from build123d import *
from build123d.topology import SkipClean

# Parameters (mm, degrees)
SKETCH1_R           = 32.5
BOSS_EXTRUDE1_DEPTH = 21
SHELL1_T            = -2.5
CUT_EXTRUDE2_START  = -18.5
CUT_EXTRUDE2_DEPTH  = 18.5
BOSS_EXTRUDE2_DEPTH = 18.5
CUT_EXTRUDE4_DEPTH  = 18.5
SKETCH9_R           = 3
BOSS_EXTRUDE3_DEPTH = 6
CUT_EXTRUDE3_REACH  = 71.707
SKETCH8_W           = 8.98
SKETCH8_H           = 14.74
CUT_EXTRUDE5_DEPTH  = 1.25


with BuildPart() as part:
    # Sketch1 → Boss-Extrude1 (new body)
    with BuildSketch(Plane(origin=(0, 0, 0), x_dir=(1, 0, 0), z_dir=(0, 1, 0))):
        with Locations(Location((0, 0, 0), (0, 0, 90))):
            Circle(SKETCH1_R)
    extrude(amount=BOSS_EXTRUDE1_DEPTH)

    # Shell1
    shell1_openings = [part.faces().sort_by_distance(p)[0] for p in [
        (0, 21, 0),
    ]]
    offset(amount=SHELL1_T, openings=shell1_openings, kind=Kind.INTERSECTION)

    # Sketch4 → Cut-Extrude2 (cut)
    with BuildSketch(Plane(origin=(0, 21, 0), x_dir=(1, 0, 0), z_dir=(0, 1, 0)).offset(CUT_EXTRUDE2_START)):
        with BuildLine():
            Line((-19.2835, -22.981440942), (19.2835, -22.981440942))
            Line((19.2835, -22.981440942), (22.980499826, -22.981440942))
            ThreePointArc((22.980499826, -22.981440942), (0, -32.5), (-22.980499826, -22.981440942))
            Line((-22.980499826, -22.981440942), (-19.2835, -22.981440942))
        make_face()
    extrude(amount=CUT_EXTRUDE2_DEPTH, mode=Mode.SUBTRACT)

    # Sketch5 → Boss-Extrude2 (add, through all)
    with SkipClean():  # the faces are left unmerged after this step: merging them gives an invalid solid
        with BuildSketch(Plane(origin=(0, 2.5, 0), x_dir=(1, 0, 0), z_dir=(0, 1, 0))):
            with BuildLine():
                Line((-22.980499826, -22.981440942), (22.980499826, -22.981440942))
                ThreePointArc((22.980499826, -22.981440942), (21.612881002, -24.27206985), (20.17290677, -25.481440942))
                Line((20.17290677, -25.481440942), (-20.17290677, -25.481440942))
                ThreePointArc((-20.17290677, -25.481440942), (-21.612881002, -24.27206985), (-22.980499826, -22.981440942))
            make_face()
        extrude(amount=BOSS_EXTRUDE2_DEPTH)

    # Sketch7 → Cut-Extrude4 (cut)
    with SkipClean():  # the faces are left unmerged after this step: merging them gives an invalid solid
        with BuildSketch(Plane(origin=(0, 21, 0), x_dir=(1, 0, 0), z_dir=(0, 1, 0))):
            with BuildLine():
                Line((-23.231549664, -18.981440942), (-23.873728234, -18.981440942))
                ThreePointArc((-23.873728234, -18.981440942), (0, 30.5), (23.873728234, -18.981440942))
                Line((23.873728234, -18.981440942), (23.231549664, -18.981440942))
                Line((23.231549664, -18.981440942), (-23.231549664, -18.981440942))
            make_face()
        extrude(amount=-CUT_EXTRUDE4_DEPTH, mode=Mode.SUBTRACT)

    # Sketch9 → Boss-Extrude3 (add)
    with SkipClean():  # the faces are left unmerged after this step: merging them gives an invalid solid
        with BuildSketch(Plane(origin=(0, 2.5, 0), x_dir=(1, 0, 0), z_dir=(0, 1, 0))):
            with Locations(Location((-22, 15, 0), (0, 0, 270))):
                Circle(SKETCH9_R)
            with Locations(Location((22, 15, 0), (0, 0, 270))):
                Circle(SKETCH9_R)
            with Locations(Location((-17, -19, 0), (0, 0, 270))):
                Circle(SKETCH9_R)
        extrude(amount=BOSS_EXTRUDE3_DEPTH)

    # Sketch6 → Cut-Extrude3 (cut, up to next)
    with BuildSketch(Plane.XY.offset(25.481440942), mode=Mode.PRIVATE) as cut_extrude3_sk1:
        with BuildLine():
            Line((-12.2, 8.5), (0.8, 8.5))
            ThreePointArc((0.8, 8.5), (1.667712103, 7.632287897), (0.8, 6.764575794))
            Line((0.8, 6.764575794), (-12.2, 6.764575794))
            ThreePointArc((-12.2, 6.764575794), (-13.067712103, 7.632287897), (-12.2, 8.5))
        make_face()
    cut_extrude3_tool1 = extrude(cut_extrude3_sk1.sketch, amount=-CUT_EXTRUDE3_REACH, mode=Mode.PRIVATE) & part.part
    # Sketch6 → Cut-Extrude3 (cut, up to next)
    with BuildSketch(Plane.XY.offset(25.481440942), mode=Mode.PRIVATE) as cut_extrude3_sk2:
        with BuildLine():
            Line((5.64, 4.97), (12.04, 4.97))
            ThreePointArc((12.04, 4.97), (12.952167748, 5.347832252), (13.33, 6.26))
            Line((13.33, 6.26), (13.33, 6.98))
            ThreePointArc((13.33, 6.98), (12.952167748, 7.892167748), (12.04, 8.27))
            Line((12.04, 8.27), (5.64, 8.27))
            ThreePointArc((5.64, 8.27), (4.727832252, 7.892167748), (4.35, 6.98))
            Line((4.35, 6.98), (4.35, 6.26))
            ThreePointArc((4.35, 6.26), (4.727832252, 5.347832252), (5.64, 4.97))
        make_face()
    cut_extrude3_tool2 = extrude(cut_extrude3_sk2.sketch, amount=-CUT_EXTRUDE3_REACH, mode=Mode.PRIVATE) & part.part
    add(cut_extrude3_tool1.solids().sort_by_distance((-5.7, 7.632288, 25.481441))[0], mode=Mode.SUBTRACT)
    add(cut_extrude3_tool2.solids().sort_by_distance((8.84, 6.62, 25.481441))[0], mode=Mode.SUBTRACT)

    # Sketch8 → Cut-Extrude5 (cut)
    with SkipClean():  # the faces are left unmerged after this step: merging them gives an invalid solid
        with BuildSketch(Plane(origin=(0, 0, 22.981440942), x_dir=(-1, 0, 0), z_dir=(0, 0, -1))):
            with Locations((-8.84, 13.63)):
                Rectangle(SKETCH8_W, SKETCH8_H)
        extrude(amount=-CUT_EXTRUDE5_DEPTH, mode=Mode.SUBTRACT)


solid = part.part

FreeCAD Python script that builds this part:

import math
import FreeCAD as App
import Part
import Sketcher

V = App.Vector
Q = App.Units.Quantity


def faces_at(feature, points):
    """Names of the faces that lie closest to the given points."""
    faces = feature.Shape.Faces
    near = lambda p: min(range(len(faces)), key=lambda i: faces[i].distToShape(Part.Vertex(*p))[0])
    return sorted({f"Face{near(p) + 1}" for p in points})

doc = App.newDocument("Part")
body = doc.addObject("PartDesign::Body", "Body")

# Sketch on XZ plane
sketch1 = body.newObject("Sketcher::SketchObject", "Sketch")
sketch1.AttachmentSupport = (doc.getObject("XZ_Plane"), [""])
sketch1.MapMode = "FlatFace"
sketch1.addGeometry(Part.Circle(V(0, 0, 0), V(0, 0, 1), 32.5), False)
sketch1.addConstraint([
    Sketcher.Constraint("Coincident", 0, 3, -1, 1),
    Sketcher.Constraint("Diameter", 0, Q("65 mm")),
])
pad1 = body.newObject("PartDesign::Pad", "Pad")
pad1.Profile = sketch1
pad1.Length = 21
pad1.Reversed = True
doc.recompute()

thickness = body.newObject("PartDesign::Thickness", "Thickness")
thickness.Base = (pad1, faces_at(pad1, [(0, 21, 0)]))
thickness.Value = 2.5
thickness.Reversed = True
thickness.Join = "Intersection"

# Sketch on XZ plane
sketch2 = body.newObject("Sketcher::SketchObject", "Sketch001")
sketch2.AttachmentSupport = (doc.getObject("XZ_Plane"), [""])
sketch2.MapMode = "FlatFace"
sketch2.AttachmentOffset = App.Placement(V(0, 0, -2.5), App.Rotation())
sketch2.addGeometry([
    Part.ArcOfCircle(Part.Circle(V(0, 0, 0), V(0, 0, 1), 32.5), math.radians(45.001173), math.radians(134.998827)),
    Part.LineSegment(V(22.9805, 22.981441, 0), V(-22.9805, 22.981441, 0)),
], False)
sketch2.addConstraint([
    Sketcher.Constraint("Coincident", 0, 1, 1, 1),
    Sketcher.Constraint("Coincident", 1, 2, 0, 2),
    Sketcher.Constraint("Horizontal", 1),
    Sketcher.Constraint("Coincident", 0, 3, -1, 1),
    Sketcher.Constraint("Radius", 0, Q("32.5 mm")),
    Sketcher.Constraint("DistanceX", 1, 2, 1, 1, Q("45.961 mm")),
])
pocket1 = body.newObject("PartDesign::Pocket", "Pocket")
pocket1.Profile = sketch2
pocket1.Length = 18.5

# Sketch on XZ plane
sketch3 = body.newObject("Sketcher::SketchObject", "Sketch002")
sketch3.AttachmentSupport = (doc.getObject("XZ_Plane"), [""])
sketch3.MapMode = "FlatFace"
sketch3.AttachmentOffset = App.Placement(V(0, 0, -2.5), App.Rotation())
sketch3.addGeometry([
    Part.LineSegment(V(22.9805, 22.981441, 0), V(-22.9805, 22.981441, 0)),
    Part.ArcOfCircle(Part.Circle(V(0, 0, 0), V(0, 0, 1), 32.5), math.radians(128.367623), math.radians(134.998827)),
    Part.LineSegment(V(-20.172907, 25.481441, 0), V(20.172907, 25.481441, 0)),
    Part.ArcOfCircle(Part.Circle(V(0, 0, 0), V(0, 0, 1), 32.5), math.radians(45.001173), math.radians(51.632377)),
], False)
sketch3.addConstraint([
    Sketcher.Constraint("Coincident", 0, 2, 1, 2),
    Sketcher.Constraint("Coincident", 1, 1, 2, 1),
    Sketcher.Constraint("Coincident", 2, 2, 3, 2),
    Sketcher.Constraint("Coincident", 3, 1, 0, 1),
    Sketcher.Constraint("Horizontal", 0),
    Sketcher.Constraint("Horizontal", 2),
    Sketcher.Constraint("Coincident", 1, 3, -1, 1),
    Sketcher.Constraint("Coincident", 3, 3, -1, 1),
    Sketcher.Constraint("Equal", 1, 3),
    Sketcher.Constraint("Radius", 1, Q("32.5 mm")),
    Sketcher.Constraint("DistanceY", 0, 2, 1, 1, Q("2.5 mm")),
    Sketcher.Constraint("DistanceX", 0, 2, 0, 1, Q("45.961 mm")),
])
pad2 = body.newObject("PartDesign::Pad", "Pad001")
pad2.Profile = sketch3
pad2.Length = 18.5
pad2.Reversed = True

# Sketch on XZ plane
sketch4 = body.newObject("Sketcher::SketchObject", "Sketch003")
sketch4.AttachmentSupport = (doc.getObject("XZ_Plane"), [""])
sketch4.MapMode = "FlatFace"
sketch4.AttachmentOffset = App.Placement(V(0, 0, -21), App.Rotation())
sketch4.addGeometry([
    Part.LineSegment(V(-23.873728, 18.981441, 0), V(23.873728, 18.981441, 0)),
    Part.ArcOfCircle(Part.Circle(V(0, 0, 0), V(0, 0, 1), 30.5), math.radians(141.512614), math.radians(398.487386)),
], False)
sketch4.addConstraint([
    Sketcher.Constraint("Coincident", 0, 1, 1, 1),
    Sketcher.Constraint("Coincident", 1, 2, 0, 2),
    Sketcher.Constraint("Horizontal", 0),
    Sketcher.Constraint("Coincident", 1, 3, -1, 1),
    Sketcher.Constraint("Radius", 1, Q("30.5 mm")),
    Sketcher.Constraint("DistanceX", 0, 1, 0, 2, Q("47.747456 mm")),
])
pocket2 = body.newObject("PartDesign::Pocket", "Pocket001")
pocket2.Profile = sketch4
pocket2.Length = 18.5
pocket2.Reversed = True

# Sketch on XZ plane
sketch5 = body.newObject("Sketcher::SketchObject", "Sketch004")
sketch5.AttachmentSupport = (doc.getObject("XZ_Plane"), [""])
sketch5.MapMode = "FlatFace"
sketch5.AttachmentOffset = App.Placement(V(0, 0, -2.5), App.Rotation())
sketch5.addGeometry([
    Part.Circle(V(-22, -15, 0), V(0, 0, 1), 3),
    Part.Circle(V(22, -15, 0), V(0, 0, 1), 3),
    Part.Circle(V(-17, 19, 0), V(0, 0, 1), 3),
], False)
sketch5.addConstraint([
    Sketcher.Constraint("Equal", 0, 1),
    Sketcher.Constraint("Equal", 1, 2),
    Sketcher.Constraint("Symmetric", 0, 3, 1, 3, -2),
    Sketcher.Constraint("Diameter", 0, Q("6 mm")),
    Sketcher.Constraint("DistanceX", 0, 3, -1, 1, Q("22 mm")),
    Sketcher.Constraint("DistanceY", 0, 3, -1, 1, Q("15 mm")),
    Sketcher.Constraint("DistanceX", 2, 3, -1, 1, Q("17 mm")),
    Sketcher.Constraint("DistanceY", -1, 1, 2, 3, Q("19 mm")),
])
pad3 = body.newObject("PartDesign::Pad", "Pad002")
pad3.Profile = sketch5
pad3.Length = 6
pad3.Reversed = True

# Sketch on XY plane
sketch6 = body.newObject("Sketcher::SketchObject", "Sketch005")
sketch6.AttachmentSupport = (doc.getObject("XY_Plane"), [""])
sketch6.MapMode = "FlatFace"
sketch6.AttachmentOffset = App.Placement(V(0, 0, 25.481441), App.Rotation())
sketch6.addGeometry([
    Part.LineSegment(V(0.8, 8.5, 0), V(-12.2, 8.5, 0)),
    Part.ArcOfCircle(Part.Circle(V(-12.2, 7.632288, 0), V(0, 0, 1), 0.867712), math.radians(90), math.radians(270)),
    Part.LineSegment(V(-12.2, 6.764576, 0), V(0.8, 6.764576, 0)),
    Part.ArcOfCircle(Part.Circle(V(0.8, 7.632288, 0), V(0, 0, 1), 0.867712), math.radians(-90), math.radians(90)),
], False)
sketch6.addConstraint([
    Sketcher.Constraint("Tangent", 0, 2, 1, 1),
    Sketcher.Constraint("Tangent", 1, 2, 2, 1),
    Sketcher.Constraint("Tangent", 2, 2, 3, 1),
    Sketcher.Constraint("Tangent", 3, 2, 0, 1),
    Sketcher.Constraint("Horizontal", 0),
    Sketcher.Constraint("Horizontal", 2),
    Sketcher.Constraint("DistanceX", 0, 2, 0, 1, Q("13 mm")),
    Sketcher.Constraint("DistanceX", 1, 3, -1, 1, Q("12.2 mm")),
    Sketcher.Constraint("DistanceY", -1, 1, 0, 2, Q("8.5 mm")),
    Sketcher.Constraint("Radius", 1, Q("0.867712 mm")),
])
pocket3 = body.newObject("PartDesign::Pocket", "Pocket002")
pocket3.Profile = sketch6
pocket3.Type = "UpToFirst"

# Sketch on XY plane
sketch7 = body.newObject("Sketcher::SketchObject", "Sketch006")
sketch7.AttachmentSupport = (doc.getObject("XY_Plane"), [""])
sketch7.MapMode = "FlatFace"
sketch7.AttachmentOffset = App.Placement(V(0, 0, 25.481441), App.Rotation())
sketch7.addGeometry([
    Part.LineSegment(V(5.64, 4.97, 0), V(12.04, 4.97, 0)),  # 0
    Part.ArcOfCircle(Part.Circle(V(12.04, 6.26, 0), V(0, 0, 1), 1.29), math.radians(-90), math.radians(0)),  # 1
    Part.LineSegment(V(13.33, 6.26, 0), V(13.33, 6.98, 0)),  # 2
    Part.ArcOfCircle(Part.Circle(V(12.04, 6.98, 0), V(0, 0, 1), 1.29), math.radians(0), math.radians(90)),  # 3
    Part.LineSegment(V(12.04, 8.27, 0), V(5.64, 8.27, 0)),  # 4
    Part.ArcOfCircle(Part.Circle(V(5.64, 6.98, 0), V(0, 0, 1), 1.29), math.radians(90), math.radians(180)),  # 5
    Part.LineSegment(V(4.35, 6.98, 0), V(4.35, 6.26, 0)),  # 6
    Part.ArcOfCircle(Part.Circle(V(5.64, 6.26, 0), V(0, 0, 1), 1.29), math.radians(180), math.radians(270)),  # 7
], False)
sketch7.addConstraint([
    Sketcher.Constraint("Tangent", 0, 2, 1, 1),
    Sketcher.Constraint("Tangent", 1, 2, 2, 1),
    Sketcher.Constraint("Tangent", 2, 2, 3, 1),
    Sketcher.Constraint("Tangent", 3, 2, 4, 1),
    Sketcher.Constraint("Tangent", 4, 2, 5, 1),
    Sketcher.Constraint("Tangent", 5, 2, 6, 1),
    Sketcher.Constraint("Tangent", 6, 2, 7, 1),
    Sketcher.Constraint("Tangent", 7, 2, 0, 1),
    Sketcher.Constraint("Horizontal", 0),
    Sketcher.Constraint("Vertical", 2),
    Sketcher.Constraint("Horizontal", 4),
    Sketcher.Constraint("Vertical", 6),
    Sketcher.Constraint("Equal", 1, 3),
    Sketcher.Constraint("Equal", 3, 5),
    Sketcher.Constraint("Equal", 5, 7),
    Sketcher.Constraint("Radius", 1, Q("1.29 mm")),
    Sketcher.Constraint("DistanceX", 0, 1, 0, 2, Q("6.4 mm")),
    Sketcher.Constraint("DistanceY", 2, 1, 2, 2, Q("0.72 mm")),
    Sketcher.Constraint("DistanceX", -1, 1, 1, 3, Q("12.04 mm")),
    Sketcher.Constraint("DistanceY", -1, 1, 1, 3, Q("6.26 mm")),
])
pocket4 = body.newObject("PartDesign::Pocket", "Pocket003")
pocket4.Profile = sketch7
pocket4.Type = "UpToFirst"

# Sketch on XY plane
sketch8 = body.newObject("Sketcher::SketchObject", "Sketch007")
sketch8.AttachmentSupport = (doc.getObject("XY_Plane"), [""])
sketch8.MapMode = "FlatFace"
sketch8.AttachmentOffset = App.Placement(V(0, 0, 22.981441), App.Rotation())
sketch8.addGeometry([
    Part.LineSegment(V(13.33, 21, 0), V(13.33, 6.26, 0)),
    Part.LineSegment(V(13.33, 6.26, 0), V(4.35, 6.26, 0)),
    Part.LineSegment(V(4.35, 6.26, 0), V(4.35, 21, 0)),
    Part.LineSegment(V(4.35, 21, 0), V(13.33, 21, 0)),
], False)
sketch8.addConstraint([
    Sketcher.Constraint("Coincident", 0, 2, 1, 1),
    Sketcher.Constraint("Coincident", 1, 2, 2, 1),
    Sketcher.Constraint("Coincident", 2, 2, 3, 1),
    Sketcher.Constraint("Coincident", 3, 2, 0, 1),
    Sketcher.Constraint("Vertical", 0),
    Sketcher.Constraint("Horizontal", 1),
    Sketcher.Constraint("Vertical", 2),
    Sketcher.Constraint("Horizontal", 3),
    Sketcher.Constraint("DistanceY", -1, 1, 2, 2, Q("21 mm")),
    Sketcher.Constraint("DistanceX", 1, 2, 1, 1, Q("8.98 mm")),
    Sketcher.Constraint("DistanceY", 0, 2, 0, 1, Q("14.74 mm")),
    Sketcher.Constraint("DistanceX", -1, 1, 0, 2, Q("13.33 mm")),
])
pocket5 = body.newObject("PartDesign::Pocket", "Pocket004")
pocket5.Profile = sketch8
pocket5.Length = 1.25
pocket5.Reversed = True

doc.recompute()
